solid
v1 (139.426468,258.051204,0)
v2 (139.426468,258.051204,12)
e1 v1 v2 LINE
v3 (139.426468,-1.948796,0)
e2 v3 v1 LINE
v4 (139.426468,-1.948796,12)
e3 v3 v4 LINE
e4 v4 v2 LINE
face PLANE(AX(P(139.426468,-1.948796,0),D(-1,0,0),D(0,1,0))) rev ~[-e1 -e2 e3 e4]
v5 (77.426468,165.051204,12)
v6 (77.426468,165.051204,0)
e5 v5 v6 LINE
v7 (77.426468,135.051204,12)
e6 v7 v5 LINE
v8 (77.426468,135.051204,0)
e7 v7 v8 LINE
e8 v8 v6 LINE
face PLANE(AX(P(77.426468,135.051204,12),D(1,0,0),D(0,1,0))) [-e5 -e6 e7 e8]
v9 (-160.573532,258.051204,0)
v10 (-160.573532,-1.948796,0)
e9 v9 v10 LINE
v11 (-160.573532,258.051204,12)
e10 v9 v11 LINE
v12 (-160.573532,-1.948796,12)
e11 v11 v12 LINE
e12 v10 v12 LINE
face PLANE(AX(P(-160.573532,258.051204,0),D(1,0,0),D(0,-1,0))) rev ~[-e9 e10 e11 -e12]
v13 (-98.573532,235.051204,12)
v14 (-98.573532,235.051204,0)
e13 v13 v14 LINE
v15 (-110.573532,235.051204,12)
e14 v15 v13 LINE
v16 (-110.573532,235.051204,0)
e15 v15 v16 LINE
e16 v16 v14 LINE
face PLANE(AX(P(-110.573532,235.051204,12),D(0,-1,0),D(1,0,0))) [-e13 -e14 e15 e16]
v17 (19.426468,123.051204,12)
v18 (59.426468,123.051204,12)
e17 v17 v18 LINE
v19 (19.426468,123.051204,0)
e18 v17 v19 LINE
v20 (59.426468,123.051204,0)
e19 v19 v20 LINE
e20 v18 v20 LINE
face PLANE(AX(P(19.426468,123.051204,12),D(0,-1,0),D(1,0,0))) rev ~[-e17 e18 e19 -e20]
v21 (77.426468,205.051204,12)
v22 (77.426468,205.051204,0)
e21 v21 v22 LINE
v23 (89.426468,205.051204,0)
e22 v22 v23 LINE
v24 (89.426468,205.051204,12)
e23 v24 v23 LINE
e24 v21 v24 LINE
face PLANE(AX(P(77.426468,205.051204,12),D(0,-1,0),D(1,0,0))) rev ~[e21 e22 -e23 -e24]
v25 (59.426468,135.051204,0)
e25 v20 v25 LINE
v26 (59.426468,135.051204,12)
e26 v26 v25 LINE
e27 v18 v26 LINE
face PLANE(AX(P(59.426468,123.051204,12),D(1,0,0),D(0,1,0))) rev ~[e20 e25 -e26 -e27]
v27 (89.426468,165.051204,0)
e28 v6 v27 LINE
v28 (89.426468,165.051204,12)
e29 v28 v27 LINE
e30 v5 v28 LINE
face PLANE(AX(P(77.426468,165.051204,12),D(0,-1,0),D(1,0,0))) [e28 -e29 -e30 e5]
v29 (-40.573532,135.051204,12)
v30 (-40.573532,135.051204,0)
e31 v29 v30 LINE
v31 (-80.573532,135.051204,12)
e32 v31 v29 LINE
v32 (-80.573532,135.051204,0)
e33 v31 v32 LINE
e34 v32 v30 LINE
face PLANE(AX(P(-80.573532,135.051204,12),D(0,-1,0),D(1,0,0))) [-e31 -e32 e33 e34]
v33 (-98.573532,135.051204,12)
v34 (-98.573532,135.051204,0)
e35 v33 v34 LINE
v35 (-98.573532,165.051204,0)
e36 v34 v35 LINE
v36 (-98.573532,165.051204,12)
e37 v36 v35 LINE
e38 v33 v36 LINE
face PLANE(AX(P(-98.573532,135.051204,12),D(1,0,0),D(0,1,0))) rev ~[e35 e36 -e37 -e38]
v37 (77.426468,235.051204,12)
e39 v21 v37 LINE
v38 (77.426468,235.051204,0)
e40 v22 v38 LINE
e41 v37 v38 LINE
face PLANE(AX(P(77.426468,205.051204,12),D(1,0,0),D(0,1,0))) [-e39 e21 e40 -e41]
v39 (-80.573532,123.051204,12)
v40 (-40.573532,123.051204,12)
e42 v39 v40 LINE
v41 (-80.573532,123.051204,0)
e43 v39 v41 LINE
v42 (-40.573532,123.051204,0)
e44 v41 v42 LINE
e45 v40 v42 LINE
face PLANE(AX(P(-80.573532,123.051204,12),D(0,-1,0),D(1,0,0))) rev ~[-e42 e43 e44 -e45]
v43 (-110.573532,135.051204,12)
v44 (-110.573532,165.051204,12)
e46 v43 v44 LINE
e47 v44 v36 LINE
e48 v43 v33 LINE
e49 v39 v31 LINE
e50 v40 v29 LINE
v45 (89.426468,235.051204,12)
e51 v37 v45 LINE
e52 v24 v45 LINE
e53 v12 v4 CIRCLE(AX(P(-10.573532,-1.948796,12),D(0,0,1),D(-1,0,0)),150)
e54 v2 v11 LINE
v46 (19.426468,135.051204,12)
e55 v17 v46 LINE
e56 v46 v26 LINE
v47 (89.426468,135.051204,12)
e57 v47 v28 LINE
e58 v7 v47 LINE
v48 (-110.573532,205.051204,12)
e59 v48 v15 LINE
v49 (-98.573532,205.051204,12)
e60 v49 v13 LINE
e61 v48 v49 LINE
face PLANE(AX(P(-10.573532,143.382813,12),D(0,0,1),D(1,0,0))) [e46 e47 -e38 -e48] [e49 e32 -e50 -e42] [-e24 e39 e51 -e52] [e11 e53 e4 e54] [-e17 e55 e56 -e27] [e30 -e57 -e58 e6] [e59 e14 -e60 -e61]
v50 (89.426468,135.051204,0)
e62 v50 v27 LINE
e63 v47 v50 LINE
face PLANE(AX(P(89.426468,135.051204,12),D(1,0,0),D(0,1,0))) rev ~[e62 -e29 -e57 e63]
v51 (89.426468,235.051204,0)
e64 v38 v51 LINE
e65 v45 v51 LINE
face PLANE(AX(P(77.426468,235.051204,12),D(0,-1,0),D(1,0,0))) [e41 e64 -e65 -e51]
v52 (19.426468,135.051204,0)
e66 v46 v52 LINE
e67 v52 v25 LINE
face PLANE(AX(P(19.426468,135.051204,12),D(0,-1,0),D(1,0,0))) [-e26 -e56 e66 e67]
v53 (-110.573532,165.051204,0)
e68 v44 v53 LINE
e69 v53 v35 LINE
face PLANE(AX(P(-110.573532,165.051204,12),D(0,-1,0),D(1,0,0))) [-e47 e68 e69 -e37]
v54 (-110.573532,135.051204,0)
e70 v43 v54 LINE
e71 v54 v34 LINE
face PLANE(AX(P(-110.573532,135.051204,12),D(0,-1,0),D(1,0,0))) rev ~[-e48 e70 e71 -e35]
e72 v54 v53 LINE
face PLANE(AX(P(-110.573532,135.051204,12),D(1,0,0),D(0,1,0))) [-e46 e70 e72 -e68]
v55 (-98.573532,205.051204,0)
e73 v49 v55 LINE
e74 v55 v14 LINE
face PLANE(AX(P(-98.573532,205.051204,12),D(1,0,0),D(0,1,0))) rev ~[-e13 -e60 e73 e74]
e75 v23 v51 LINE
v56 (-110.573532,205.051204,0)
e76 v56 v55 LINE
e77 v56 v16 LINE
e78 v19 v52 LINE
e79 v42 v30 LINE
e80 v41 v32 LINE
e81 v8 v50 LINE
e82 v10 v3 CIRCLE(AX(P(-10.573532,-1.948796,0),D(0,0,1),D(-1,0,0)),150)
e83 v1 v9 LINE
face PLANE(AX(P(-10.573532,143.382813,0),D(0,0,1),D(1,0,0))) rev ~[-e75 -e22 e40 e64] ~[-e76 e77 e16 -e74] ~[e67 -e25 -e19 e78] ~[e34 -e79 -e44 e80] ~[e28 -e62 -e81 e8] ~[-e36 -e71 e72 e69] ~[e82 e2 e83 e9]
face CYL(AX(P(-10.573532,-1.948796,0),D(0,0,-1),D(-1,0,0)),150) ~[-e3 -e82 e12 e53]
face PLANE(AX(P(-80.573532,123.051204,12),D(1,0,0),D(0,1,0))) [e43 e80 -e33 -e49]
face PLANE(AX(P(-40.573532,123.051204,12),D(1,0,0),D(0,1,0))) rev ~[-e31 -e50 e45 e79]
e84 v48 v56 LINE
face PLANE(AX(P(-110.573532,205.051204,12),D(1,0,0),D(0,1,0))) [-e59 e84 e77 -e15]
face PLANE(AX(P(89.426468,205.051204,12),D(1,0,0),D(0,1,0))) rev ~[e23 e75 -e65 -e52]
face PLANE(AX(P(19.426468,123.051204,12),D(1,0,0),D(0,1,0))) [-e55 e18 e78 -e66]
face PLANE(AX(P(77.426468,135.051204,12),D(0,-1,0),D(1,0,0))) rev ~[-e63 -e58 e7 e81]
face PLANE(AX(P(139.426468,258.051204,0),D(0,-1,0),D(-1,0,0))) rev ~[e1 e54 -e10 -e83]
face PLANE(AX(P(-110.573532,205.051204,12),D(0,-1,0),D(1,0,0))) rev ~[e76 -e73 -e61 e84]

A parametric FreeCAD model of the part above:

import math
import FreeCAD as App
import Part
import Sketcher

V = App.Vector


def add_polygon(sketch, points):
    """Adds a closed chain of lines whose ends are joined by coincident constraints."""
    first, n = sketch.GeometryCount, len(points)
    for a, b in zip(points, points[1:] + points[:1]):
        sketch.addGeometry(Part.LineSegment(App.Vector(*a, 0), App.Vector(*b, 0)), False)
    for i in range(n):
        sketch.addConstraint(Sketcher.Constraint("Coincident", first + i, 2, first + (i + 1) % n, 1))

doc = App.newDocument("Part")
params = doc.addObject("Spreadsheet::Sheet", "Params")
for row, (alias, value) in enumerate([
    ("sketch1_radius", "150 mm"),
    ("sketch1_height", "260 mm"),
    ("pad1_length", "12 mm"),
    ("sketch2_width", "12 mm"),
    ("sketch2_width2", "40 mm"),
    ("sketch2_height", "30 mm"),
], start=1):
    params.set(f"A{row}", alias)
    params.set(f"B{row}", "=" + value)
    params.setAlias(f"B{row}", alias)

body = doc.addObject("PartDesign::Body", "Body")

sketch1 = body.newObject("Sketcher::SketchObject", "Sketch")
sketch1.AttachmentSupport = (doc.getObject("XY_Plane"), [""])
sketch1.MapMode = "FlatFace"
sketch1.addGeometry(Part.LineSegment(V(139.426468, -1.948796, 0), V(139.426468, 258.051204, 0)), False)
sketch1.addGeometry(Part.LineSegment(V(139.426468, 258.051204, 0), V(-160.573532, 258.051204, 0)), False)
sketch1.addGeometry(Part.LineSegment(V(-160.573532, 258.051204, 0), V(-160.573532, -1.948796, 0)), False)
sketch1.addGeometry(Part.ArcOfCircle(Part.Circle(V(-10.573532, -1.948796, 0), V(0, 0, 1), 150), math.radians(180), math.radians(360)), False)
sketch1.addConstraint(Sketcher.Constraint("Coincident", 0, 2, 1, 1))
sketch1.addConstraint(Sketcher.Constraint("Coincident", 1, 2, 2, 1))
sketch1.addConstraint(Sketcher.Constraint("Tangent", 2, 2, 3, 1))
sketch1.addConstraint(Sketcher.Constraint("Tangent", 3, 2, 0, 1))
sketch1.addConstraint(Sketcher.Constraint("Vertical", 0))
sketch1.addConstraint(Sketcher.Constraint("Horizontal", 1))
sketch1.addConstraint(Sketcher.Constraint("Vertical", 2))
sketch1.addConstraint(Sketcher.Constraint("Radius", 3, 150.0))
sketch1.addConstraint(Sketcher.Constraint("DistanceY", 0, 1, 0, 2, 260.0))
sketch1.addConstraint(Sketcher.Constraint("DistanceX", 3, 3, -1, 1, 10.573532))
sketch1.addConstraint(Sketcher.Constraint("DistanceY", 3, 3, -1, 1, 1.948796))
sketch1.setExpression("Constraints[7]", "Params.sketch1_radius")
sketch1.setExpression("Constraints[8]", "Params.sketch1_height")
pad1 = body.newObject("PartDesign::Pad", "Pad")
pad1.Profile = sketch1
pad1.setExpression("Length", "Params.pad1_length")

sketch2 = body.newObject("Sketcher::SketchObject", "Sketch001")
sketch2.AttachmentSupport = (doc.getObject("XY_Plane"), [""])
sketch2.MapMode = "FlatFace"
sketch2.AttachmentOffset = App.Placement(V(0, 0, 12), App.Rotation())
add_polygon(sketch2, [(-110.573532, 165.051204), (-110.573532, 135.051204), (-98.573532, 135.051204), (-98.573532, 165.051204)])
add_polygon(sketch2, [(-110.573532, 235.051204), (-110.573532, 205.051204), (-98.573532, 205.051204), (-98.573532, 235.051204)])
add_polygon(sketch2, [(-80.573532, 135.051204), (-80.573532, 123.051204), (-40.573532, 123.051204), (-40.573532, 135.051204)])
add_polygon(sketch2, [(77.426468, 235.051204), (77.426468, 205.051204), (89.426468, 205.051204), (89.426468, 235.051204)])
add_polygon(sketch2, [(19.426468, 135.051204), (19.426468, 123.051204), (59.426468, 123.051204), (59.426468, 135.051204)])
add_polygon(sketch2, [(77.426468, 165.051204), (77.426468, 135.051204), (89.426468, 135.051204), (89.426468, 165.051204)])
sketch2.addConstraint(Sketcher.Constraint("Vertical", 0))
sketch2.addConstraint(Sketcher.Constraint("Horizontal", 1))
sketch2.addConstraint(Sketcher.Constraint("Vertical", 2))
sketch2.addConstraint(Sketcher.Constraint("Horizontal", 3))
sketch2.addConstraint(Sketcher.Constraint("Vertical", 4))
sketch2.addConstraint(Sketcher.Constraint("Horizontal", 5))
sketch2.addConstraint(Sketcher.Constraint("Vertical", 6))
sketch2.addConstraint(Sketcher.Constraint("Horizontal", 7))
sketch2.addConstraint(Sketcher.Constraint("Vertical", 8))
sketch2.addConstraint(Sketcher.Constraint("Horizontal", 9))
sketch2.addConstraint(Sketcher.Constraint("Vertical", 10))
sketch2.addConstraint(Sketcher.Constraint("Horizontal", 11))
sketch2.addConstraint(Sketcher.Constraint("Vertical", 12))
sketch2.addConstraint(Sketcher.Constraint("Horizontal", 13))
sketch2.addConstraint(Sketcher.Constraint("Vertical", 14))
sketch2.addConstraint(Sketcher.Constraint("Horizontal", 15))
sketch2.addConstraint(Sketcher.Constraint("Vertical", 16))
sketch2.addConstraint(Sketcher.Constraint("Horizontal", 17))
sketch2.addConstraint(Sketcher.Constraint("Vertical", 18))
sketch2.addConstraint(Sketcher.Constraint("Horizontal", 19))
sketch2.addConstraint(Sketcher.Constraint("Vertical", 20))
sketch2.addConstraint(Sketcher.Constraint("Horizontal", 21))
sketch2.addConstraint(Sketcher.Constraint("Vertical", 22))
sketch2.addConstraint(Sketcher.Constraint("Horizontal", 23))
sketch2.addConstraint(Sketcher.Constraint("Horizontal", 1, 2, 10, 2))
sketch2.addConstraint(Sketcher.Constraint("Horizontal", 5, 2, 12, 2))
sketch2.addConstraint(Sketcher.Constraint("Horizontal", 7, 2, 14, 2))
sketch2.addConstraint(Sketcher.Constraint("Horizontal", 9, 2, 16, 2))
sketch2.addConstraint(Sketcher.Constraint("Horizontal", 11, 2, 18, 2))
sketch2.addConstraint(Sketcher.Constraint("Horizontal", 19, 2, 20, 2))
sketch2.addConstraint(Sketcher.Constraint("Horizontal", 3, 2, 22, 2))
sketch2.addConstraint(Sketcher.Constraint("Vertical", 3, 2, 4, 2))
sketch2.addConstraint(Sketcher.Constraint("Vertical", 2, 2, 5, 2))
sketch2.addConstraint(Sketcher.Constraint("Vertical", 15, 2, 20, 2))
sketch2.addConstraint(Sketcher.Constraint("Vertical", 14, 2, 21, 2))
sketch2.addConstraint(Sketcher.Constraint("Equal", 7, 13))
sketch2.addConstraint(Sketcher.Constraint("Equal", 11, 17))
sketch2.addConstraint(Sketcher.Constraint("Equal", 2, 4))
sketch2.addConstraint(Sketcher.Constraint("Equal", 23, 8))
sketch2.addConstraint(Sketcher.Constraint("DistanceX", 1, 1, 1, 2, 12.0))
sketch2.addConstraint(Sketcher.Constraint("DistanceX", 9, 1, 9, 2, 40.0))
sketch2.addConstraint(Sketcher.Constraint("DistanceY", 0, 2, 0, 1, 30.0))
sketch2.addConstraint(Sketcher.Constraint("DistanceY", 3, 2, 4, 2, 40.0))
sketch2.addConstraint(Sketcher.Constraint("DistanceX", 1, 2, 8, 2, 18.0))
sketch2.addConstraint(Sketcher.Constraint("DistanceX", 10, 2, 12, 2, 118.0))
sketch2.addConstraint(Sketcher.Constraint("DistanceX", 9, 2, 16, 2, 60.0))
sketch2.addConstraint(Sketcher.Constraint("DistanceX", 0, 2, -1, 1, 110.573532))
sketch2.addConstraint(Sketcher.Constraint("DistanceY", -1, 1, 0, 2, 135.051204))
sketch2.setExpression("Constraints[63]", "Params.sketch2_width")
sketch2.setExpression("Constraints[64]", "Params.sketch2_width2")
sketch2.setExpression("Constraints[65]", "Params.sketch2_height")
pocket1 = body.newObject("PartDesign::Pocket", "Pocket")
pocket1.Profile = sketch2
pocket1.Type = "ThroughAll"

doc.recompute()
